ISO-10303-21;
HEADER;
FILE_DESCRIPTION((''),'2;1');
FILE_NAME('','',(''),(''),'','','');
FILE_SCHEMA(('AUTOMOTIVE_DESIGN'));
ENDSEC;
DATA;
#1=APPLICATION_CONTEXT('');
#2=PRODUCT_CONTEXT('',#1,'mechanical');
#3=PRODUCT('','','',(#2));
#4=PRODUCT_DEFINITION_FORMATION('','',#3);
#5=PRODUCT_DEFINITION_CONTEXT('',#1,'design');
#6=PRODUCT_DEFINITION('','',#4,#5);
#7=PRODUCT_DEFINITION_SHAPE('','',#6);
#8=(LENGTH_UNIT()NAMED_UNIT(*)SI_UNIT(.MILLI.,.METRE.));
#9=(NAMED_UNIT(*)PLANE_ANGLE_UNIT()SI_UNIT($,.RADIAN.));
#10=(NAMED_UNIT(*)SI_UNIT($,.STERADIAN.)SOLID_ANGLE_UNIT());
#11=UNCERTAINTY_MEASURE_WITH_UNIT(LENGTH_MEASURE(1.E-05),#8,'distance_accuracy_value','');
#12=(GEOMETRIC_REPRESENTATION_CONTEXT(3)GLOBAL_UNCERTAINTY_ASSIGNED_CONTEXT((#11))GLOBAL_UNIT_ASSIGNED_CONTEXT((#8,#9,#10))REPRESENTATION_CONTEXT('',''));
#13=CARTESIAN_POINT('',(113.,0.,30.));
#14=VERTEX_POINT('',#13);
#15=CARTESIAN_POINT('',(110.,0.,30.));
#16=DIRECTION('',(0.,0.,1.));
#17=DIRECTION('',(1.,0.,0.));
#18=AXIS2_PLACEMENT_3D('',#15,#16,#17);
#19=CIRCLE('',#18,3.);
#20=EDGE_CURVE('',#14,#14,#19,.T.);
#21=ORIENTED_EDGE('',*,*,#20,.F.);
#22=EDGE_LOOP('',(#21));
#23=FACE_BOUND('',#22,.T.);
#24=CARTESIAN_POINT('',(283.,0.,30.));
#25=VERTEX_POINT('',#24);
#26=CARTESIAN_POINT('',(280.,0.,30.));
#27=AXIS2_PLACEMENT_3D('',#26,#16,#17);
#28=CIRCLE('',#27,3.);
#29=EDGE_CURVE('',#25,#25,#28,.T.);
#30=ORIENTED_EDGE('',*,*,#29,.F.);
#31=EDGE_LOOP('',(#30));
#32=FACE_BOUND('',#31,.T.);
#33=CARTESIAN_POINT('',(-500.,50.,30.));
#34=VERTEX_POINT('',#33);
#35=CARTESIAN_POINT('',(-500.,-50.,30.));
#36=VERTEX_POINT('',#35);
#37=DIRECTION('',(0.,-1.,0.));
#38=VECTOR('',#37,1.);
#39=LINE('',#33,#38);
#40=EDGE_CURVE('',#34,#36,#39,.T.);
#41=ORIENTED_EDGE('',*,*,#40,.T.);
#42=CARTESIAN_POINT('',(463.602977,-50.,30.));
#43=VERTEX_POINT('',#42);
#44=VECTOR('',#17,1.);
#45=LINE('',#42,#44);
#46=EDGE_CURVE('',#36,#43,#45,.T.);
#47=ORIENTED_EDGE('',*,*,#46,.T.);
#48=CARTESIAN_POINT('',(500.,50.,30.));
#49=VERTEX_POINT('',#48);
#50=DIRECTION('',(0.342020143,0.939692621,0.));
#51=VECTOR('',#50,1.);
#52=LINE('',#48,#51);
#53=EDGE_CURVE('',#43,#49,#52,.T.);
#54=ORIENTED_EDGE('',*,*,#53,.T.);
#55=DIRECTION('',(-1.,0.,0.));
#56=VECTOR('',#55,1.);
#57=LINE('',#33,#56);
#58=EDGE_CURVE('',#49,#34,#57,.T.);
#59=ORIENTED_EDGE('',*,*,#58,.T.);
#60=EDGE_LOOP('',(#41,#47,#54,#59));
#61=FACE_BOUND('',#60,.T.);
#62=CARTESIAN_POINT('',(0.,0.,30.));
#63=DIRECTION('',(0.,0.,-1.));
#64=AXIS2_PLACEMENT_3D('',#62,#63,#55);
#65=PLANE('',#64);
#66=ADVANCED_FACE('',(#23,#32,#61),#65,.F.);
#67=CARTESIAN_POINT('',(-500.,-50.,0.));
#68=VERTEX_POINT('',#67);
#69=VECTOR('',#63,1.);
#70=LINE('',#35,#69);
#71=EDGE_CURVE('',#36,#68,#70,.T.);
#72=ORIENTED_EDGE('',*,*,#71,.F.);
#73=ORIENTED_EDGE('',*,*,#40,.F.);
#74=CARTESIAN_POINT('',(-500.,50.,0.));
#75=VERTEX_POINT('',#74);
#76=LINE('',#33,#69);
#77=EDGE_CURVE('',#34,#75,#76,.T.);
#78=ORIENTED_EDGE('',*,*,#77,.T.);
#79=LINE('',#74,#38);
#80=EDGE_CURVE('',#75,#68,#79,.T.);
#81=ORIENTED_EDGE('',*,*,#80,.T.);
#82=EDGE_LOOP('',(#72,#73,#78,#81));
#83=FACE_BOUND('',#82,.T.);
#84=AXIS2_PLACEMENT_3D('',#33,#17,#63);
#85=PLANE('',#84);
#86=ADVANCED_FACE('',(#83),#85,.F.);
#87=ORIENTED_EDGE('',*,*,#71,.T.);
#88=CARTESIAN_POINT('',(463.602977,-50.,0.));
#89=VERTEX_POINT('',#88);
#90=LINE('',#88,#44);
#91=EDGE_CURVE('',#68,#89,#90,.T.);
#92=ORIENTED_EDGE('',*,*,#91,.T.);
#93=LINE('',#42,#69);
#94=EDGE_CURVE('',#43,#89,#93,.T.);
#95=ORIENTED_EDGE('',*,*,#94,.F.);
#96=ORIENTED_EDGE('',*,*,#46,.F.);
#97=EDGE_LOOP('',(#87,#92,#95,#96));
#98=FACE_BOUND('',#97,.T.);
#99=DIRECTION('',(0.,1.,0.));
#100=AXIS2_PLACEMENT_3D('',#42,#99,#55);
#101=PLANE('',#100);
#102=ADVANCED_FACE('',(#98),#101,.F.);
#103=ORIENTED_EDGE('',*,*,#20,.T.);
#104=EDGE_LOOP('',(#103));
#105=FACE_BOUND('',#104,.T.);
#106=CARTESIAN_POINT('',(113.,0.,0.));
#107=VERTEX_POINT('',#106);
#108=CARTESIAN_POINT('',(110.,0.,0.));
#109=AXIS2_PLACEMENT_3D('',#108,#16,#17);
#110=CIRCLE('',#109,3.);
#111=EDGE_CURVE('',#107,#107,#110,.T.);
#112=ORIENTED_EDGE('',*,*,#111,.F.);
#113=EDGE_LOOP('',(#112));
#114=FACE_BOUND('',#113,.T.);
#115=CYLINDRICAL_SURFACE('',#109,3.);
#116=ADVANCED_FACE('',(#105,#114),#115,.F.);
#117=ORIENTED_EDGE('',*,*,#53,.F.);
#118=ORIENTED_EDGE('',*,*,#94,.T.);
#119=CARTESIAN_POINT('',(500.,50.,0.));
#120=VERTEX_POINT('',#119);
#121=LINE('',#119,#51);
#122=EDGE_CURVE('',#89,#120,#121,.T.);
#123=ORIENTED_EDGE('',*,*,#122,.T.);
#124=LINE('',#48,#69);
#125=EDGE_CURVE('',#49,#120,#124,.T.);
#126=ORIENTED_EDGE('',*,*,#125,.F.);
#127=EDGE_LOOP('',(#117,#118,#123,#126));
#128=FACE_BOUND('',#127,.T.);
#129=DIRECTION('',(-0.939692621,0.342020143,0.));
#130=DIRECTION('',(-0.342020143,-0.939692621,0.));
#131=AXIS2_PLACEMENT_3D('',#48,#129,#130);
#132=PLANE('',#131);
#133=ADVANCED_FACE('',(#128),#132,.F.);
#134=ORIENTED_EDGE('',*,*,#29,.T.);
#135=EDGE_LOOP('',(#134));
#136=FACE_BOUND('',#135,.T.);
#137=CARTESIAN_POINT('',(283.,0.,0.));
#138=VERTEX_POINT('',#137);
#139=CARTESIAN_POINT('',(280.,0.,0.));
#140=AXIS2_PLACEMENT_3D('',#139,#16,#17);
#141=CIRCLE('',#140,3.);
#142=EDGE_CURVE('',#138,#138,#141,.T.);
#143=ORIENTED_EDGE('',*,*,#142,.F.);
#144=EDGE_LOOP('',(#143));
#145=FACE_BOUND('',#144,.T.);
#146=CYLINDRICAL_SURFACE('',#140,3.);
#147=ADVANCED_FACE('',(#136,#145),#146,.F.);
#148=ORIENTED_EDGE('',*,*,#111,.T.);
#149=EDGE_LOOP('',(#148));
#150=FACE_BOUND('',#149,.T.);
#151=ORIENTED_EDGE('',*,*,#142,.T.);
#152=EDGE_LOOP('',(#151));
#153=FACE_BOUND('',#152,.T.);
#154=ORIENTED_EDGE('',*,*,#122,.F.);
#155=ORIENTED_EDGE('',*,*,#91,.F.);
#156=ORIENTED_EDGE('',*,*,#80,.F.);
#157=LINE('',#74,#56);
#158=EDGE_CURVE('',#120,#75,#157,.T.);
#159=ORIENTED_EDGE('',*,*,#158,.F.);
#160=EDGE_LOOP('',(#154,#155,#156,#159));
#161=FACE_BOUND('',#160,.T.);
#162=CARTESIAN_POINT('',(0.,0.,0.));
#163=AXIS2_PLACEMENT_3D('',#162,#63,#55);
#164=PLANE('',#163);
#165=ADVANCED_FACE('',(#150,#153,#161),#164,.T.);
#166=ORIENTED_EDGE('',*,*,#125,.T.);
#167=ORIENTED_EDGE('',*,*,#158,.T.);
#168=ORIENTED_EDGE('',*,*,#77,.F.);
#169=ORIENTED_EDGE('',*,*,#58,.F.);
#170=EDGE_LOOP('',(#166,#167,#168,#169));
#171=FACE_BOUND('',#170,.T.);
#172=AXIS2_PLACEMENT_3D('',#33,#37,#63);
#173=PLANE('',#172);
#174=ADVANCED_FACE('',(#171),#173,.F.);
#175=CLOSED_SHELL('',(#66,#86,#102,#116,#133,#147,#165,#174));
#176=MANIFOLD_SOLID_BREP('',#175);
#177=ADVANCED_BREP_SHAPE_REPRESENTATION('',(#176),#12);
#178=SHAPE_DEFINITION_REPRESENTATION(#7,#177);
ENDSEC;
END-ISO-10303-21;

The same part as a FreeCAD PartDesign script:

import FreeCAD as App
import Part
import Sketcher

V = App.Vector
Q = App.Units.Quantity

doc = App.newDocument("Part")
body = doc.addObject("PartDesign::Body", "Body")

# Sketch on XY plane
sketch1 = body.newObject("Sketcher::SketchObject", "Sketch")
sketch1.AttachmentSupport = (doc.getObject("XY_Plane"), [""])
sketch1.MapMode = "FlatFace"
sketch1.addGeometry([
    Part.LineSegment(V(464, -50, 0), V(500, 50, 0)),
    Part.LineSegment(V(500, 50, 0), V(-500, 50, 0)),
    Part.LineSegment(V(-500, 50, 0), V(-500, -50, 0)),
    Part.LineSegment(V(-500, -50, 0), V(464, -50, 0)),
], False)
sketch1.addConstraint([
    Sketcher.Constraint("Coincident", 0, 2, 1, 1),
    Sketcher.Constraint("Coincident", 1, 2, 2, 1),
    Sketcher.Constraint("Coincident", 2, 2, 3, 1),
    Sketcher.Constraint("Coincident", 3, 2, 0, 1),
    Sketcher.Constraint("Horizontal", 1),
    Sketcher.Constraint("Vertical", 2),
    Sketcher.Constraint("Horizontal", 3),
    Sketcher.Constraint("Symmetric", 0, 2, 2, 2, -1, 1),
    Sketcher.Constraint("DistanceX", 1, 2, 1, 1, 1000.0),
    Sketcher.Constraint("DistanceY", 2, 2, 2, 1, 100.0),
    Sketcher.Constraint("Angle", 0, Q("70 deg")),
])
pad1 = body.newObject("PartDesign::Pad", "Pad")
pad1.Profile = sketch1
pad1.Length = 30

# Sketch on XY plane
sketch2 = body.newObject("Sketcher::SketchObject", "Sketch001")
sketch2.AttachmentSupport = (doc.getObject("XY_Plane"), [""])
sketch2.MapMode = "FlatFace"
sketch2.AttachmentOffset = App.Placement(V(0, 0, 30), App.Rotation())
sketch2.addGeometry([
    Part.Circle(V(110, 0, 0), V(0, 0, 1), 3),
    Part.Circle(V(280, 0, 0), V(0, 0, 1), 3),
], False)
sketch2.addConstraint([
    Sketcher.Constraint("Equal", 0, 1),
    Sketcher.Constraint("PointOnObject", 0, 3, -1),
    Sketcher.Constraint("PointOnObject", 1, 3, -1),
    Sketcher.Constraint("Diameter", 0, 6.0),
    Sketcher.Constraint("DistanceX", -1, 1, 0, 3, 110.0),
    Sketcher.Constraint("DistanceX", -1, 1, 1, 3, 280.0),
])
pocket1 = body.newObject("PartDesign::Pocket", "Pocket")
pocket1.Profile = sketch2
pocket1.Type = "ThroughAll"

doc.recompute()
